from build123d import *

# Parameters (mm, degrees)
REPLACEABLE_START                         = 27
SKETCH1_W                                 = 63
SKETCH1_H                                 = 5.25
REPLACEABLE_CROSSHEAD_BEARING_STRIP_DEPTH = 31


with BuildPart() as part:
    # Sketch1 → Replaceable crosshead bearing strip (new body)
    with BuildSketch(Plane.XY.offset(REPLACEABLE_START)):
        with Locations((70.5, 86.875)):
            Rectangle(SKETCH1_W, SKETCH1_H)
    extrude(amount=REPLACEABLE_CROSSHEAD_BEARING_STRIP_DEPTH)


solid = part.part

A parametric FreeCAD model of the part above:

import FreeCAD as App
import Part
import Sketcher
from FreeCAD import Vector
Q = App.Units.Quantity


def add_polygon(sketch, points):
    """Adds a closed chain of lines whose ends are joined by coincident constraints."""
    first, n = sketch.GeometryCount, len(points)
    for a, b in zip(points, points[1:] + points[:1]):
        sketch.addGeometry(Part.LineSegment(App.Vector(*a, 0), App.Vector(*b, 0)), False)
    for i in range(n):
        sketch.addConstraint(Sketcher.Constraint("Coincident", first + i, 2, first + (i + 1) % n, 1))

doc = App.newDocument("Part")
body = doc.addObject("PartDesign::Body", "Body")

sketch1 = body.newObject("Sketcher::SketchObject", "Sketch")
sketch1.AttachmentSupport = (doc.getObject("XY_Plane"), [""])
sketch1.MapMode = "FlatFace"
sketch1.AttachmentOffset = App.Placement(Vector(0, 0, 27), App.Rotation())
add_polygon(sketch1, [(39, 89.5), (39, 84.25), (102, 84.25), (102, 89.5)])
sketch1.addConstraint([
    Sketcher.Constraint("Vertical", 0),
    Sketcher.Constraint("Horizontal", 1),
    Sketcher.Constraint("Vertical", 2),
    Sketcher.Constraint("Horizontal", 3),
    Sketcher.Constraint("DistanceX", 1, 1, 1, 2, Q("63 mm")),
    Sketcher.Constraint("DistanceX", -1, 1, 0, 2, Q("39 mm")),
    Sketcher.Constraint("DistanceY", 0, 2, 0, 1, Q("5.25 mm")),
    Sketcher.Constraint("DistanceY", -1, 1, 2, 2, Q("89.5 mm")),
])
pad1 = body.newObject("PartDesign::Pad", "Pad")
pad1.Profile = sketch1
pad1.Length = 31

doc.recompute()
